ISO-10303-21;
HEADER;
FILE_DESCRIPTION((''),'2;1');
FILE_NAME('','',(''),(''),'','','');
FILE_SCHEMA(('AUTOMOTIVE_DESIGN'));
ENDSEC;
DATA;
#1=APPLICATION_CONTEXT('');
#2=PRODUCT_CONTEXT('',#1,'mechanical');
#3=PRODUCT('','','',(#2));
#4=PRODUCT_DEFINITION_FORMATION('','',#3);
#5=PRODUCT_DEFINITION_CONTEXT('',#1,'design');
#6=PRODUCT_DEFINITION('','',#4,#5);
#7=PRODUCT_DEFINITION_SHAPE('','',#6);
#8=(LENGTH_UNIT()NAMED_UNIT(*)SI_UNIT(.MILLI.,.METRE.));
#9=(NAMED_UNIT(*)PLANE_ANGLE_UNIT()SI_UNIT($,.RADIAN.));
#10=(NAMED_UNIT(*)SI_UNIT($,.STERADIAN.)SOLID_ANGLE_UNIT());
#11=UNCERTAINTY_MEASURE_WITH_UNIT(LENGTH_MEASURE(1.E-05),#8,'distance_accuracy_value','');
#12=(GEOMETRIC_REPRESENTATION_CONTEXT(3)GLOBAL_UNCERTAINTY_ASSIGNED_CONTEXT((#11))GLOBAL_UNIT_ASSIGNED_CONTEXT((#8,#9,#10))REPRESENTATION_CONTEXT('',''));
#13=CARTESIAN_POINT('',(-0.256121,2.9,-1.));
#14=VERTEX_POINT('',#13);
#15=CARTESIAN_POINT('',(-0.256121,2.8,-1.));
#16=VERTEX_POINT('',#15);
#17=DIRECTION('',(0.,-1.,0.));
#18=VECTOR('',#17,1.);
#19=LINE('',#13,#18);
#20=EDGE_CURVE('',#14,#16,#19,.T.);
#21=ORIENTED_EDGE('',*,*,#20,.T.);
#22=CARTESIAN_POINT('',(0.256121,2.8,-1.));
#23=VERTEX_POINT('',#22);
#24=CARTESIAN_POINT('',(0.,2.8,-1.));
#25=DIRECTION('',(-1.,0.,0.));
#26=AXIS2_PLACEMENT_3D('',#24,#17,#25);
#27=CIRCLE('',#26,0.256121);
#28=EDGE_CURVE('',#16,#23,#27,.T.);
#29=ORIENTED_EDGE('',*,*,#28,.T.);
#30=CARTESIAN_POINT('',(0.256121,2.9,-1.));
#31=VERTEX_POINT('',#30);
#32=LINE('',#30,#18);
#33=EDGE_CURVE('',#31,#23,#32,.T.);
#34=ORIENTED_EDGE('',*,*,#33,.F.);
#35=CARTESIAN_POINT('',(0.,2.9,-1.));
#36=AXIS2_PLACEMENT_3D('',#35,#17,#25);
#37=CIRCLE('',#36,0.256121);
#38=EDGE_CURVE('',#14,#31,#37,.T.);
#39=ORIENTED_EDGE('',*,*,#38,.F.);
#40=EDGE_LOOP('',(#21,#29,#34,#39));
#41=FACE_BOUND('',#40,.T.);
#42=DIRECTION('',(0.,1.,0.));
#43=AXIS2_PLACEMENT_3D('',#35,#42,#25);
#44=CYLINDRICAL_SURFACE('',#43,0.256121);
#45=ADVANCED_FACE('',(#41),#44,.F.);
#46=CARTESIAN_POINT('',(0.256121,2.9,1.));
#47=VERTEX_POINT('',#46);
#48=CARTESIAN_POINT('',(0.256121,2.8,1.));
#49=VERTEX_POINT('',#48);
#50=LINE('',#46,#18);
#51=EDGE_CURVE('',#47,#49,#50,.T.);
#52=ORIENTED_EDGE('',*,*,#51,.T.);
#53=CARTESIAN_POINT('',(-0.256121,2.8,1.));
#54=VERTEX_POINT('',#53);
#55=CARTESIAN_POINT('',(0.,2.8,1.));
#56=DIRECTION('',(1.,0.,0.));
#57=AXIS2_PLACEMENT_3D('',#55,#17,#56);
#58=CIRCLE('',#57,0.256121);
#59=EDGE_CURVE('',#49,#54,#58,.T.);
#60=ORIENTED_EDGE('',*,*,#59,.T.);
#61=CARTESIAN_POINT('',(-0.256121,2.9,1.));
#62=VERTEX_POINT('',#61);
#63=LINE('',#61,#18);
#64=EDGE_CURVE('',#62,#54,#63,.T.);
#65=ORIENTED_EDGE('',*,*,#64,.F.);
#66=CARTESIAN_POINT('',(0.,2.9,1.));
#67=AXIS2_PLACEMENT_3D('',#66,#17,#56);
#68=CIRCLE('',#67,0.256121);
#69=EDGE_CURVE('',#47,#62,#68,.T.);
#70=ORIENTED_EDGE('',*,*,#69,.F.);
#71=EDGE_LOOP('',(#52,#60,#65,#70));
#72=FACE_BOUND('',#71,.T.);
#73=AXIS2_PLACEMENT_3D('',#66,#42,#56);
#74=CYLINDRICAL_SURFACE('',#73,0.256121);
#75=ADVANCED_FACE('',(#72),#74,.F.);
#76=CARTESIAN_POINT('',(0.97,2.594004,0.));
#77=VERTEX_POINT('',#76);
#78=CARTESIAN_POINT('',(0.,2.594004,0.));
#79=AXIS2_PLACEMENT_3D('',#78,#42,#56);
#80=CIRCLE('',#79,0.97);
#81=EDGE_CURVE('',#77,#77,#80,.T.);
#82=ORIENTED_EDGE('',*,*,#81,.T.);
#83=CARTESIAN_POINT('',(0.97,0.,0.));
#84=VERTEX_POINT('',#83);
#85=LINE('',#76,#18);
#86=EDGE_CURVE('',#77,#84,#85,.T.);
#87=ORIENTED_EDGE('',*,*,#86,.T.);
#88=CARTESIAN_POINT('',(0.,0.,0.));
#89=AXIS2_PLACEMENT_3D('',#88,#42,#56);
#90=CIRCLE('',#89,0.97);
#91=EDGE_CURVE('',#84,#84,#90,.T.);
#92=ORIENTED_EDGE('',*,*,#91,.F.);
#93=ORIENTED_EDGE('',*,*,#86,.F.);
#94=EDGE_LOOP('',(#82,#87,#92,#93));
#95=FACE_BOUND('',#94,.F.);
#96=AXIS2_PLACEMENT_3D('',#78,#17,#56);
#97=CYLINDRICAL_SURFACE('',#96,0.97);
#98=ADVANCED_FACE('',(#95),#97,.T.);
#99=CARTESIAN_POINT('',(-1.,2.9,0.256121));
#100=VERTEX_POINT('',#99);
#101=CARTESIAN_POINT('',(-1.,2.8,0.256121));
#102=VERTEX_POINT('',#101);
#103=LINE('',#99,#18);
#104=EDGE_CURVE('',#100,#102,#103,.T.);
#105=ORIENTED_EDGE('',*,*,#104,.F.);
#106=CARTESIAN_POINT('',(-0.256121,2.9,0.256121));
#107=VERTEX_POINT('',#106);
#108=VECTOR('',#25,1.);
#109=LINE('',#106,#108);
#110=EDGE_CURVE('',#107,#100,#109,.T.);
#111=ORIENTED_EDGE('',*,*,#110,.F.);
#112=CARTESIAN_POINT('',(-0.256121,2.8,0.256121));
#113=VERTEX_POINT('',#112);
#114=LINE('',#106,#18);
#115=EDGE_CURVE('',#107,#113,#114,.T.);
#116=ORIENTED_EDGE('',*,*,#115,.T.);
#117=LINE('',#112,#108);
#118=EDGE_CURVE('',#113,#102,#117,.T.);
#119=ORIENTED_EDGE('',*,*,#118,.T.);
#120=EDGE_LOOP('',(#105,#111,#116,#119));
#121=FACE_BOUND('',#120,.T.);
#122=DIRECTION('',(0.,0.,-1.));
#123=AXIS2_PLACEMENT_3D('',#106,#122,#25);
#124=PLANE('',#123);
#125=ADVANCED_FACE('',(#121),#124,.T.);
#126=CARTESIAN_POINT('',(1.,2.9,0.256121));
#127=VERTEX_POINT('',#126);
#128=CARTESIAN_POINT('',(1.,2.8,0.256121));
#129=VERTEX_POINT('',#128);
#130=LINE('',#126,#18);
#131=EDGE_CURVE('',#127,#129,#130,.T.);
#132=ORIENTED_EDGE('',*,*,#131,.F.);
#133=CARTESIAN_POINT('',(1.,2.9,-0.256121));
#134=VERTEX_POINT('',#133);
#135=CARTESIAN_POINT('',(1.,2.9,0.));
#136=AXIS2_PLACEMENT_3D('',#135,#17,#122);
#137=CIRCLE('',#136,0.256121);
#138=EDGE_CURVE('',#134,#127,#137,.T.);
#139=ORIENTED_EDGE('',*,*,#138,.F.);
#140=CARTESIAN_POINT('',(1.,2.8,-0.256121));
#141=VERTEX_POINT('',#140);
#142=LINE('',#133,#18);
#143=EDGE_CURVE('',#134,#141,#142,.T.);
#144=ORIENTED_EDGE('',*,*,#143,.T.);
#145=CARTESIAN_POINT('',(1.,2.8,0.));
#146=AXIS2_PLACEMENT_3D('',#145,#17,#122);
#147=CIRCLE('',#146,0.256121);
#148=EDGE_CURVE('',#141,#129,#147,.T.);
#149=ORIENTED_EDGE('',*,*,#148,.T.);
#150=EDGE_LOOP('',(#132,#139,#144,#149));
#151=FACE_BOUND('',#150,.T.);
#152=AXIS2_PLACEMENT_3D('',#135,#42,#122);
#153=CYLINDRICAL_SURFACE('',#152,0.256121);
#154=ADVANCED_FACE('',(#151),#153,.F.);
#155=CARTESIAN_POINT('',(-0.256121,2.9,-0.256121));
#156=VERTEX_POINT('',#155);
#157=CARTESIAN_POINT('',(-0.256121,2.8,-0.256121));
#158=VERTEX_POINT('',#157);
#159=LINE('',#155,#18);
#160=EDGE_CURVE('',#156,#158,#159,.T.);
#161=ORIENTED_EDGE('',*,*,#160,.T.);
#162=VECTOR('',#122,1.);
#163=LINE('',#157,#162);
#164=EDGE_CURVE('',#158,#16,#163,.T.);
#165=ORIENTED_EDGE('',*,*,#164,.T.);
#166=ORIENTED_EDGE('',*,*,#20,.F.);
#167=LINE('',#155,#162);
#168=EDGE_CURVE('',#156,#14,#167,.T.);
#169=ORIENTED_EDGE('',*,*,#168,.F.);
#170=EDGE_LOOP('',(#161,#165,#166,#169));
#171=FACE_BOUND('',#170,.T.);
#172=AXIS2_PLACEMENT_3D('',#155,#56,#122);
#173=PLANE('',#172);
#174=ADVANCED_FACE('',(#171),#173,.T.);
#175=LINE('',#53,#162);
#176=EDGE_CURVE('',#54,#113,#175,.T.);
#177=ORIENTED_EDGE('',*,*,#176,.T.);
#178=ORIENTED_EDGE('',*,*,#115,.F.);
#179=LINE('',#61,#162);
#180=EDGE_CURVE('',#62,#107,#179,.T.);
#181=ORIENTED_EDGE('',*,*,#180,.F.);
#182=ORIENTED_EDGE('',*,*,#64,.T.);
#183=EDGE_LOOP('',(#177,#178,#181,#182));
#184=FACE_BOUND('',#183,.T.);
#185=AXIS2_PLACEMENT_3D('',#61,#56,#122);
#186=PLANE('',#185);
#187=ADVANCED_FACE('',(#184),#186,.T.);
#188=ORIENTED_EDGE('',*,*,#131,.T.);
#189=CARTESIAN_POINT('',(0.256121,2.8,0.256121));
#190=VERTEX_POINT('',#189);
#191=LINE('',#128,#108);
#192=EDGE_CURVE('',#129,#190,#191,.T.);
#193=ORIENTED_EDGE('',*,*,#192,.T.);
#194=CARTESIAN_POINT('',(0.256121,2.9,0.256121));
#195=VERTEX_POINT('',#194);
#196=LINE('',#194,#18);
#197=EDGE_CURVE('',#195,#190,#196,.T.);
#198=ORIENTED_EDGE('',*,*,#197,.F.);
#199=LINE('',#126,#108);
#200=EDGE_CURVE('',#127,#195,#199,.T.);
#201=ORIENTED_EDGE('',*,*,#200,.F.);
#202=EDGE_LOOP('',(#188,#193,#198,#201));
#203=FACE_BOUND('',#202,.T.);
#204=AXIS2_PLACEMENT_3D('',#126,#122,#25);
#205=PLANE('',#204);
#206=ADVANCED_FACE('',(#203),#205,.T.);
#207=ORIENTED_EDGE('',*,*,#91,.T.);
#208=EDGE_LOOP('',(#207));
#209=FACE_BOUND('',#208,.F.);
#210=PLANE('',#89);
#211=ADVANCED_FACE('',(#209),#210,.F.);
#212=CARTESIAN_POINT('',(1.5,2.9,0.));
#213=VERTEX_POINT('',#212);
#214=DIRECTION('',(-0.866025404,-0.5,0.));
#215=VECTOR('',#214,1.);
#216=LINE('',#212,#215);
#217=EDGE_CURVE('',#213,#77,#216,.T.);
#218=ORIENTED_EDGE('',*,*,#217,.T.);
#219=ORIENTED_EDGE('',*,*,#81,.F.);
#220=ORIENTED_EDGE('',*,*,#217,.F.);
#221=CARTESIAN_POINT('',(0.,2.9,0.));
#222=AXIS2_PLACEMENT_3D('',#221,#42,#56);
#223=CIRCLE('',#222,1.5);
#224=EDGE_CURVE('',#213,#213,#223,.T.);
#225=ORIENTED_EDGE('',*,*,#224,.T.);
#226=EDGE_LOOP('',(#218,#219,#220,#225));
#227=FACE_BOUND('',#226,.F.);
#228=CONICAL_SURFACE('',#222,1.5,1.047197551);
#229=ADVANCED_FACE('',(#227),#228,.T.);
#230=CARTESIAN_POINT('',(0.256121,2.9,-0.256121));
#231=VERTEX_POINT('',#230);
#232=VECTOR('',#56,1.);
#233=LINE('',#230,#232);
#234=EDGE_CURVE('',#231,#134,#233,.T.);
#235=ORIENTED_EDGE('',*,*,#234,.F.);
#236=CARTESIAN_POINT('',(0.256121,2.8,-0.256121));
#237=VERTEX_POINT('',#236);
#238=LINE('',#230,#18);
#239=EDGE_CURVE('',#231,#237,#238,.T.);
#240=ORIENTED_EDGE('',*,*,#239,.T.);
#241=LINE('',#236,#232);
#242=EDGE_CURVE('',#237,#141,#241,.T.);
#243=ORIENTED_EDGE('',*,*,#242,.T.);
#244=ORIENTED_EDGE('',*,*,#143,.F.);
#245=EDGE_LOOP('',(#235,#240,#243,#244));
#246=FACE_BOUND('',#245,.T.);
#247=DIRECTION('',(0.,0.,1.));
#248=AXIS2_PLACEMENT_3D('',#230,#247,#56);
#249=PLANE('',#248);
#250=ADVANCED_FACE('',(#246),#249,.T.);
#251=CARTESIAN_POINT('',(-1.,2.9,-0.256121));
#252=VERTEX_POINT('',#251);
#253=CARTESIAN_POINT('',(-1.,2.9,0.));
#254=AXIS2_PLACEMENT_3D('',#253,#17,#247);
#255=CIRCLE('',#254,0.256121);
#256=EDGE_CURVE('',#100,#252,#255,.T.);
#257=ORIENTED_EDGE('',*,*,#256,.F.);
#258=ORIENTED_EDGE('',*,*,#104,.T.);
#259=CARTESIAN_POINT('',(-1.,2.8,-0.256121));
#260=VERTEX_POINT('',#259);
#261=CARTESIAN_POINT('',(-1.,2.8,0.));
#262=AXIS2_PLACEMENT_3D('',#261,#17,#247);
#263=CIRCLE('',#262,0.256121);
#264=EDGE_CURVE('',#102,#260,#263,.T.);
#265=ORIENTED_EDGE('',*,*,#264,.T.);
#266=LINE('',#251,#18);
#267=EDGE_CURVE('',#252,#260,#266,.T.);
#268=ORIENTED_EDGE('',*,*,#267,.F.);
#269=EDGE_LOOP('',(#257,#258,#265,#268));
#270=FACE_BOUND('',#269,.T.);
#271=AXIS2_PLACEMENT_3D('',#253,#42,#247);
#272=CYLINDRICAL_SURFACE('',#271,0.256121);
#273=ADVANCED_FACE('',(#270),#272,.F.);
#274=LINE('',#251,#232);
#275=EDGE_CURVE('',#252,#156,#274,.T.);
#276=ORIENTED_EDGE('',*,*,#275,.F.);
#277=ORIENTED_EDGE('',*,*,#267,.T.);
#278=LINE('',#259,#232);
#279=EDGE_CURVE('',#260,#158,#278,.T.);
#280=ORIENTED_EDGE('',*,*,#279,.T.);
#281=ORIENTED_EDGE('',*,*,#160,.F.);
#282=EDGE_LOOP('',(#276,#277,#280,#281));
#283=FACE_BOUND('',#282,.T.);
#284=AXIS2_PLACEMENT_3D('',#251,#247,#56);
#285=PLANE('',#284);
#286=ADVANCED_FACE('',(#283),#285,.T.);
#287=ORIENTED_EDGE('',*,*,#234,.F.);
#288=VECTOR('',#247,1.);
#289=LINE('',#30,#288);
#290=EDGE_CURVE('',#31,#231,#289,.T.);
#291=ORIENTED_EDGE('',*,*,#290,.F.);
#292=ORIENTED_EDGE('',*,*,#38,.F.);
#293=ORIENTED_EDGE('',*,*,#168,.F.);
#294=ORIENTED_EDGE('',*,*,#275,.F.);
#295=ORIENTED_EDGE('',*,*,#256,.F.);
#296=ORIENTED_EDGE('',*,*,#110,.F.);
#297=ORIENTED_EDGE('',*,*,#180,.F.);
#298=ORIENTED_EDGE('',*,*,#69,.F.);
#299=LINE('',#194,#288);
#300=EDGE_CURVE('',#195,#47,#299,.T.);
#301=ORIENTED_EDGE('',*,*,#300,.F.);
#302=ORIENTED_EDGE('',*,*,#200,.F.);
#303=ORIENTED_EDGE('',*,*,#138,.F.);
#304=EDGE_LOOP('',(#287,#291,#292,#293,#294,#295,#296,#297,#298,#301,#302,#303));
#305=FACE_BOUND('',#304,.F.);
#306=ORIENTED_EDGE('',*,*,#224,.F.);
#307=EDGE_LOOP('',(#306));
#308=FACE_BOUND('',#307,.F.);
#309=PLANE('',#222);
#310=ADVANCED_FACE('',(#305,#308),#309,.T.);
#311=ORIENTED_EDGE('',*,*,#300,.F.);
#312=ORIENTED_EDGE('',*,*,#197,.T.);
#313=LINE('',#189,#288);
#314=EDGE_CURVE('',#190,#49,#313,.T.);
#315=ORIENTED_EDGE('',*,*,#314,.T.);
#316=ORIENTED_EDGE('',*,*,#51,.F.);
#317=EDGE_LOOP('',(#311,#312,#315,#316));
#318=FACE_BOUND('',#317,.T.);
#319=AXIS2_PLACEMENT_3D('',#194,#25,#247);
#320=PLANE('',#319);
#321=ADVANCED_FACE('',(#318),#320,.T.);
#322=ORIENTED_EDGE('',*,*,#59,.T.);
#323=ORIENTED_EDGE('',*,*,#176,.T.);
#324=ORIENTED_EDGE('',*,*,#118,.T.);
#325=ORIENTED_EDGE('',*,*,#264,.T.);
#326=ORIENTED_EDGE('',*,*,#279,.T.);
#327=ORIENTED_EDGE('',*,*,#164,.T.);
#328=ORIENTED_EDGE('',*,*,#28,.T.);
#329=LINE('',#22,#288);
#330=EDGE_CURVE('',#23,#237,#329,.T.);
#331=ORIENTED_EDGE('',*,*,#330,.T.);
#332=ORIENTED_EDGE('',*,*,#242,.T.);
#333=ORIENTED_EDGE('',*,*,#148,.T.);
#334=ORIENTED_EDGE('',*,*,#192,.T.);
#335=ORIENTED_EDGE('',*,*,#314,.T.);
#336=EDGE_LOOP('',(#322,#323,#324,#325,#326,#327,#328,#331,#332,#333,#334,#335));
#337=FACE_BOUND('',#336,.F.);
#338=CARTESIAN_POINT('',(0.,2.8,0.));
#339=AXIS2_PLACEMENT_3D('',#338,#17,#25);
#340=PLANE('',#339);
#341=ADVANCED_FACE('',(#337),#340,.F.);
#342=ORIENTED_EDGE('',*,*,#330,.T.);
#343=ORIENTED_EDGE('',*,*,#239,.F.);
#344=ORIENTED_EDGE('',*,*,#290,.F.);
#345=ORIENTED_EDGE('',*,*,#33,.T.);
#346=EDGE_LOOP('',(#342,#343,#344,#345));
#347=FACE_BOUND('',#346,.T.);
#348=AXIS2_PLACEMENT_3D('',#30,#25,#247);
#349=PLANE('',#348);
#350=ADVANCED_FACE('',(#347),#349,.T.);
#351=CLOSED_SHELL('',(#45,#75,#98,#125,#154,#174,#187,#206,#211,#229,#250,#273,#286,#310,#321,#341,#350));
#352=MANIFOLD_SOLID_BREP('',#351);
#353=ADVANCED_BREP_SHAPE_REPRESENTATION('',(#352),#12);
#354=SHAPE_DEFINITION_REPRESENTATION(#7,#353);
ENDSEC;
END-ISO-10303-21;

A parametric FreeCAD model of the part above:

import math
import FreeCAD as App
import Part
import Sketcher
Q = App.Units.Quantity


def add_polygon(sketch, points):
    """Adds a closed chain of lines whose ends are joined by coincident constraints."""
    first, n = sketch.GeometryCount, len(points)
    for a, b in zip(points, points[1:] + points[:1]):
        sketch.addGeometry(Part.LineSegment(App.Vector(*a, 0), App.Vector(*b, 0)), False)
    for i in range(n):
        sketch.addConstraint(Sketcher.Constraint("Coincident", first + i, 2, first + (i + 1) % n, 1))

doc = App.newDocument("Part")
body = doc.addObject("PartDesign::Body", "Body")

# Sketch on XY plane
sketch1 = body.newObject("Sketcher::SketchObject", "Sketch")
sketch1.AttachmentSupport = (doc.getObject("XY_Plane"), [""])
sketch1.MapMode = "FlatFace"
add_polygon(sketch1, [(1.5, 2.9), (0, 2.9), (0, 0), (1, 0), (1, 2.6)])  # lines 0-4
sketch1.addConstraint(Sketcher.Constraint("Horizontal", 0))
sketch1.addConstraint(Sketcher.Constraint("Vertical", 1))
sketch1.addConstraint(Sketcher.Constraint("Horizontal", 2))
sketch1.addConstraint(Sketcher.Constraint("Vertical", 3))
sketch1.addConstraint(Sketcher.Constraint("Coincident", 1, 2, -1, 1))
sketch1.addConstraint(Sketcher.Constraint("Angle", 4, Q("30 deg")))
sketch1.addConstraint(Sketcher.Constraint("DistanceX", 0, 2, 0, 1, Q("1.5 mm")))
sketch1.addConstraint(Sketcher.Constraint("DistanceY", 1, 2, 1, 1, Q("2.9 mm")))
sketch1.addConstraint(Sketcher.Constraint("DistanceX", 2, 1, 2, 2, Q("0.97 mm")))
revolution = body.newObject("PartDesign::Revolution", "Revolution")
revolution.Profile = sketch1
revolution.ReferenceAxis = (sketch1, ["V_Axis"])
revolution.Angle = 360

# Sketch on XZ plane
sketch2 = body.newObject("Sketcher::SketchObject", "Sketch001")
sketch2.AttachmentSupport = (doc.getObject("XZ_Plane"), [""])
sketch2.MapMode = "FlatFace"
sketch2.AttachmentOffset = App.Placement(App.Vector(0, 0, -2.9), App.Rotation())
sketch2.addGeometry(Part.LineSegment(App.Vector(0.26, -0.26, 0), App.Vector(0.26, -1, 0)), False)
sketch2.addGeometry(Part.ArcOfCircle(Part.Circle(App.Vector(0, -1, 0), App.Vector(0, 0, 1), 0.26), math.radians(180), math.radians(360)), False)
sketch2.addGeometry(Part.LineSegment(App.Vector(-0.26, -1, 0), App.Vector(-0.26, -0.26, 0)), False)
sketch2.addGeometry(Part.LineSegment(App.Vector(-0.26, -0.26, 0), App.Vector(-1, -0.26, 0)), False)
sketch2.addGeometry(Part.ArcOfCircle(Part.Circle(App.Vector(-1, 0, 0), App.Vector(0, 0, 1), 0.26), math.radians(90), math.radians(270)), False)
sketch2.addGeometry(Part.LineSegment(App.Vector(-1, 0.26, 0), App.Vector(-0.26, 0.26, 0)), False)
sketch2.addGeometry(Part.LineSegment(App.Vector(-0.26, 0.26, 0), App.Vector(-0.26, 1, 0)), False)
sketch2.addGeometry(Part.ArcOfCircle(Part.Circle(App.Vector(0, 1, 0), App.Vector(0, 0, 1), 0.26), math.radians(0), math.radians(180)), False)
sketch2.addGeometry(Part.LineSegment(App.Vector(0.26, 1, 0), App.Vector(0.26, 0.26, 0)), False)
sketch2.addGeometry(Part.LineSegment(App.Vector(0.26, 0.26, 0), App.Vector(1, 0.26, 0)), False)
sketch2.addGeometry(Part.ArcOfCircle(Part.Circle(App.Vector(1, 0, 0), App.Vector(0, 0, 1), 0.26), math.radians(-90), math.radians(90)), False)
sketch2.addGeometry(Part.LineSegment(App.Vector(1, -0.26, 0), App.Vector(0.26, -0.26, 0)), False)
sketch2.addConstraint(Sketcher.Constraint("Tangent", 0, 2, 1, 2))
sketch2.addConstraint(Sketcher.Constraint("Tangent", 1, 1, 2, 1))
sketch2.addConstraint(Sketcher.Constraint("Coincident", 2, 2, 3, 1))
sketch2.addConstraint(Sketcher.Constraint("Tangent", 3, 2, 4, 2))
sketch2.addConstraint(Sketcher.Constraint("Tangent", 4, 1, 5, 1))
sketch2.addConstraint(Sketcher.Constraint("Coincident", 5, 2, 6, 1))
sketch2.addConstraint(Sketcher.Constraint("Tangent", 6, 2, 7, 2))
sketch2.addConstraint(Sketcher.Constraint("Tangent", 7, 1, 8, 1))
sketch2.addConstraint(Sketcher.Constraint("Coincident", 8, 2, 9, 1))
sketch2.addConstraint(Sketcher.Constraint("Tangent", 9, 2, 10, 2))
sketch2.addConstraint(Sketcher.Constraint("Tangent", 10, 1, 11, 1))
sketch2.addConstraint(Sketcher.Constraint("Coincident", 11, 2, 0, 1))
sketch2.addConstraint(Sketcher.Constraint("Vertical", 0))
sketch2.addConstraint(Sketcher.Constraint("Vertical", 2))
sketch2.addConstraint(Sketcher.Constraint("Horizontal", 3))
sketch2.addConstraint(Sketcher.Constraint("Horizontal", 5))
sketch2.addConstraint(Sketcher.Constraint("Vertical", 6))
sketch2.addConstraint(Sketcher.Constraint("Vertical", 8))
sketch2.addConstraint(Sketcher.Constraint("Horizontal", 9))
sketch2.addConstraint(Sketcher.Constraint("Horizontal", 11))
sketch2.addConstraint(Sketcher.Constraint("Equal", 1, 4))
sketch2.addConstraint(Sketcher.Constraint("Equal", 4, 7))
sketch2.addConstraint(Sketcher.Constraint("Equal", 7, 10))
sketch2.addConstraint(Sketcher.Constraint("Symmetric", 1, 3, 7, 3, -1, 1))
sketch2.addConstraint(Sketcher.Constraint("Symmetric", 4, 3, 10, 3, -1, 1))
sketch2.addConstraint(Sketcher.Constraint("Symmetric", 5, 2, 8, 2, -2))
sketch2.addConstraint(Sketcher.Constraint("Equal", 11, 0))
sketch2.addConstraint(Sketcher.Constraint("DistanceY", 1, 3, -1, 1, Q("1 mm")))
sketch2.addConstraint(Sketcher.Constraint("Radius", 1, Q("0.256121 mm")))
pocket1 = body.newObject("PartDesign::Pocket", "Pocket")
pocket1.Profile = sketch2
pocket1.Length = 0.1
pocket1.Reversed = True

doc.recompute()
